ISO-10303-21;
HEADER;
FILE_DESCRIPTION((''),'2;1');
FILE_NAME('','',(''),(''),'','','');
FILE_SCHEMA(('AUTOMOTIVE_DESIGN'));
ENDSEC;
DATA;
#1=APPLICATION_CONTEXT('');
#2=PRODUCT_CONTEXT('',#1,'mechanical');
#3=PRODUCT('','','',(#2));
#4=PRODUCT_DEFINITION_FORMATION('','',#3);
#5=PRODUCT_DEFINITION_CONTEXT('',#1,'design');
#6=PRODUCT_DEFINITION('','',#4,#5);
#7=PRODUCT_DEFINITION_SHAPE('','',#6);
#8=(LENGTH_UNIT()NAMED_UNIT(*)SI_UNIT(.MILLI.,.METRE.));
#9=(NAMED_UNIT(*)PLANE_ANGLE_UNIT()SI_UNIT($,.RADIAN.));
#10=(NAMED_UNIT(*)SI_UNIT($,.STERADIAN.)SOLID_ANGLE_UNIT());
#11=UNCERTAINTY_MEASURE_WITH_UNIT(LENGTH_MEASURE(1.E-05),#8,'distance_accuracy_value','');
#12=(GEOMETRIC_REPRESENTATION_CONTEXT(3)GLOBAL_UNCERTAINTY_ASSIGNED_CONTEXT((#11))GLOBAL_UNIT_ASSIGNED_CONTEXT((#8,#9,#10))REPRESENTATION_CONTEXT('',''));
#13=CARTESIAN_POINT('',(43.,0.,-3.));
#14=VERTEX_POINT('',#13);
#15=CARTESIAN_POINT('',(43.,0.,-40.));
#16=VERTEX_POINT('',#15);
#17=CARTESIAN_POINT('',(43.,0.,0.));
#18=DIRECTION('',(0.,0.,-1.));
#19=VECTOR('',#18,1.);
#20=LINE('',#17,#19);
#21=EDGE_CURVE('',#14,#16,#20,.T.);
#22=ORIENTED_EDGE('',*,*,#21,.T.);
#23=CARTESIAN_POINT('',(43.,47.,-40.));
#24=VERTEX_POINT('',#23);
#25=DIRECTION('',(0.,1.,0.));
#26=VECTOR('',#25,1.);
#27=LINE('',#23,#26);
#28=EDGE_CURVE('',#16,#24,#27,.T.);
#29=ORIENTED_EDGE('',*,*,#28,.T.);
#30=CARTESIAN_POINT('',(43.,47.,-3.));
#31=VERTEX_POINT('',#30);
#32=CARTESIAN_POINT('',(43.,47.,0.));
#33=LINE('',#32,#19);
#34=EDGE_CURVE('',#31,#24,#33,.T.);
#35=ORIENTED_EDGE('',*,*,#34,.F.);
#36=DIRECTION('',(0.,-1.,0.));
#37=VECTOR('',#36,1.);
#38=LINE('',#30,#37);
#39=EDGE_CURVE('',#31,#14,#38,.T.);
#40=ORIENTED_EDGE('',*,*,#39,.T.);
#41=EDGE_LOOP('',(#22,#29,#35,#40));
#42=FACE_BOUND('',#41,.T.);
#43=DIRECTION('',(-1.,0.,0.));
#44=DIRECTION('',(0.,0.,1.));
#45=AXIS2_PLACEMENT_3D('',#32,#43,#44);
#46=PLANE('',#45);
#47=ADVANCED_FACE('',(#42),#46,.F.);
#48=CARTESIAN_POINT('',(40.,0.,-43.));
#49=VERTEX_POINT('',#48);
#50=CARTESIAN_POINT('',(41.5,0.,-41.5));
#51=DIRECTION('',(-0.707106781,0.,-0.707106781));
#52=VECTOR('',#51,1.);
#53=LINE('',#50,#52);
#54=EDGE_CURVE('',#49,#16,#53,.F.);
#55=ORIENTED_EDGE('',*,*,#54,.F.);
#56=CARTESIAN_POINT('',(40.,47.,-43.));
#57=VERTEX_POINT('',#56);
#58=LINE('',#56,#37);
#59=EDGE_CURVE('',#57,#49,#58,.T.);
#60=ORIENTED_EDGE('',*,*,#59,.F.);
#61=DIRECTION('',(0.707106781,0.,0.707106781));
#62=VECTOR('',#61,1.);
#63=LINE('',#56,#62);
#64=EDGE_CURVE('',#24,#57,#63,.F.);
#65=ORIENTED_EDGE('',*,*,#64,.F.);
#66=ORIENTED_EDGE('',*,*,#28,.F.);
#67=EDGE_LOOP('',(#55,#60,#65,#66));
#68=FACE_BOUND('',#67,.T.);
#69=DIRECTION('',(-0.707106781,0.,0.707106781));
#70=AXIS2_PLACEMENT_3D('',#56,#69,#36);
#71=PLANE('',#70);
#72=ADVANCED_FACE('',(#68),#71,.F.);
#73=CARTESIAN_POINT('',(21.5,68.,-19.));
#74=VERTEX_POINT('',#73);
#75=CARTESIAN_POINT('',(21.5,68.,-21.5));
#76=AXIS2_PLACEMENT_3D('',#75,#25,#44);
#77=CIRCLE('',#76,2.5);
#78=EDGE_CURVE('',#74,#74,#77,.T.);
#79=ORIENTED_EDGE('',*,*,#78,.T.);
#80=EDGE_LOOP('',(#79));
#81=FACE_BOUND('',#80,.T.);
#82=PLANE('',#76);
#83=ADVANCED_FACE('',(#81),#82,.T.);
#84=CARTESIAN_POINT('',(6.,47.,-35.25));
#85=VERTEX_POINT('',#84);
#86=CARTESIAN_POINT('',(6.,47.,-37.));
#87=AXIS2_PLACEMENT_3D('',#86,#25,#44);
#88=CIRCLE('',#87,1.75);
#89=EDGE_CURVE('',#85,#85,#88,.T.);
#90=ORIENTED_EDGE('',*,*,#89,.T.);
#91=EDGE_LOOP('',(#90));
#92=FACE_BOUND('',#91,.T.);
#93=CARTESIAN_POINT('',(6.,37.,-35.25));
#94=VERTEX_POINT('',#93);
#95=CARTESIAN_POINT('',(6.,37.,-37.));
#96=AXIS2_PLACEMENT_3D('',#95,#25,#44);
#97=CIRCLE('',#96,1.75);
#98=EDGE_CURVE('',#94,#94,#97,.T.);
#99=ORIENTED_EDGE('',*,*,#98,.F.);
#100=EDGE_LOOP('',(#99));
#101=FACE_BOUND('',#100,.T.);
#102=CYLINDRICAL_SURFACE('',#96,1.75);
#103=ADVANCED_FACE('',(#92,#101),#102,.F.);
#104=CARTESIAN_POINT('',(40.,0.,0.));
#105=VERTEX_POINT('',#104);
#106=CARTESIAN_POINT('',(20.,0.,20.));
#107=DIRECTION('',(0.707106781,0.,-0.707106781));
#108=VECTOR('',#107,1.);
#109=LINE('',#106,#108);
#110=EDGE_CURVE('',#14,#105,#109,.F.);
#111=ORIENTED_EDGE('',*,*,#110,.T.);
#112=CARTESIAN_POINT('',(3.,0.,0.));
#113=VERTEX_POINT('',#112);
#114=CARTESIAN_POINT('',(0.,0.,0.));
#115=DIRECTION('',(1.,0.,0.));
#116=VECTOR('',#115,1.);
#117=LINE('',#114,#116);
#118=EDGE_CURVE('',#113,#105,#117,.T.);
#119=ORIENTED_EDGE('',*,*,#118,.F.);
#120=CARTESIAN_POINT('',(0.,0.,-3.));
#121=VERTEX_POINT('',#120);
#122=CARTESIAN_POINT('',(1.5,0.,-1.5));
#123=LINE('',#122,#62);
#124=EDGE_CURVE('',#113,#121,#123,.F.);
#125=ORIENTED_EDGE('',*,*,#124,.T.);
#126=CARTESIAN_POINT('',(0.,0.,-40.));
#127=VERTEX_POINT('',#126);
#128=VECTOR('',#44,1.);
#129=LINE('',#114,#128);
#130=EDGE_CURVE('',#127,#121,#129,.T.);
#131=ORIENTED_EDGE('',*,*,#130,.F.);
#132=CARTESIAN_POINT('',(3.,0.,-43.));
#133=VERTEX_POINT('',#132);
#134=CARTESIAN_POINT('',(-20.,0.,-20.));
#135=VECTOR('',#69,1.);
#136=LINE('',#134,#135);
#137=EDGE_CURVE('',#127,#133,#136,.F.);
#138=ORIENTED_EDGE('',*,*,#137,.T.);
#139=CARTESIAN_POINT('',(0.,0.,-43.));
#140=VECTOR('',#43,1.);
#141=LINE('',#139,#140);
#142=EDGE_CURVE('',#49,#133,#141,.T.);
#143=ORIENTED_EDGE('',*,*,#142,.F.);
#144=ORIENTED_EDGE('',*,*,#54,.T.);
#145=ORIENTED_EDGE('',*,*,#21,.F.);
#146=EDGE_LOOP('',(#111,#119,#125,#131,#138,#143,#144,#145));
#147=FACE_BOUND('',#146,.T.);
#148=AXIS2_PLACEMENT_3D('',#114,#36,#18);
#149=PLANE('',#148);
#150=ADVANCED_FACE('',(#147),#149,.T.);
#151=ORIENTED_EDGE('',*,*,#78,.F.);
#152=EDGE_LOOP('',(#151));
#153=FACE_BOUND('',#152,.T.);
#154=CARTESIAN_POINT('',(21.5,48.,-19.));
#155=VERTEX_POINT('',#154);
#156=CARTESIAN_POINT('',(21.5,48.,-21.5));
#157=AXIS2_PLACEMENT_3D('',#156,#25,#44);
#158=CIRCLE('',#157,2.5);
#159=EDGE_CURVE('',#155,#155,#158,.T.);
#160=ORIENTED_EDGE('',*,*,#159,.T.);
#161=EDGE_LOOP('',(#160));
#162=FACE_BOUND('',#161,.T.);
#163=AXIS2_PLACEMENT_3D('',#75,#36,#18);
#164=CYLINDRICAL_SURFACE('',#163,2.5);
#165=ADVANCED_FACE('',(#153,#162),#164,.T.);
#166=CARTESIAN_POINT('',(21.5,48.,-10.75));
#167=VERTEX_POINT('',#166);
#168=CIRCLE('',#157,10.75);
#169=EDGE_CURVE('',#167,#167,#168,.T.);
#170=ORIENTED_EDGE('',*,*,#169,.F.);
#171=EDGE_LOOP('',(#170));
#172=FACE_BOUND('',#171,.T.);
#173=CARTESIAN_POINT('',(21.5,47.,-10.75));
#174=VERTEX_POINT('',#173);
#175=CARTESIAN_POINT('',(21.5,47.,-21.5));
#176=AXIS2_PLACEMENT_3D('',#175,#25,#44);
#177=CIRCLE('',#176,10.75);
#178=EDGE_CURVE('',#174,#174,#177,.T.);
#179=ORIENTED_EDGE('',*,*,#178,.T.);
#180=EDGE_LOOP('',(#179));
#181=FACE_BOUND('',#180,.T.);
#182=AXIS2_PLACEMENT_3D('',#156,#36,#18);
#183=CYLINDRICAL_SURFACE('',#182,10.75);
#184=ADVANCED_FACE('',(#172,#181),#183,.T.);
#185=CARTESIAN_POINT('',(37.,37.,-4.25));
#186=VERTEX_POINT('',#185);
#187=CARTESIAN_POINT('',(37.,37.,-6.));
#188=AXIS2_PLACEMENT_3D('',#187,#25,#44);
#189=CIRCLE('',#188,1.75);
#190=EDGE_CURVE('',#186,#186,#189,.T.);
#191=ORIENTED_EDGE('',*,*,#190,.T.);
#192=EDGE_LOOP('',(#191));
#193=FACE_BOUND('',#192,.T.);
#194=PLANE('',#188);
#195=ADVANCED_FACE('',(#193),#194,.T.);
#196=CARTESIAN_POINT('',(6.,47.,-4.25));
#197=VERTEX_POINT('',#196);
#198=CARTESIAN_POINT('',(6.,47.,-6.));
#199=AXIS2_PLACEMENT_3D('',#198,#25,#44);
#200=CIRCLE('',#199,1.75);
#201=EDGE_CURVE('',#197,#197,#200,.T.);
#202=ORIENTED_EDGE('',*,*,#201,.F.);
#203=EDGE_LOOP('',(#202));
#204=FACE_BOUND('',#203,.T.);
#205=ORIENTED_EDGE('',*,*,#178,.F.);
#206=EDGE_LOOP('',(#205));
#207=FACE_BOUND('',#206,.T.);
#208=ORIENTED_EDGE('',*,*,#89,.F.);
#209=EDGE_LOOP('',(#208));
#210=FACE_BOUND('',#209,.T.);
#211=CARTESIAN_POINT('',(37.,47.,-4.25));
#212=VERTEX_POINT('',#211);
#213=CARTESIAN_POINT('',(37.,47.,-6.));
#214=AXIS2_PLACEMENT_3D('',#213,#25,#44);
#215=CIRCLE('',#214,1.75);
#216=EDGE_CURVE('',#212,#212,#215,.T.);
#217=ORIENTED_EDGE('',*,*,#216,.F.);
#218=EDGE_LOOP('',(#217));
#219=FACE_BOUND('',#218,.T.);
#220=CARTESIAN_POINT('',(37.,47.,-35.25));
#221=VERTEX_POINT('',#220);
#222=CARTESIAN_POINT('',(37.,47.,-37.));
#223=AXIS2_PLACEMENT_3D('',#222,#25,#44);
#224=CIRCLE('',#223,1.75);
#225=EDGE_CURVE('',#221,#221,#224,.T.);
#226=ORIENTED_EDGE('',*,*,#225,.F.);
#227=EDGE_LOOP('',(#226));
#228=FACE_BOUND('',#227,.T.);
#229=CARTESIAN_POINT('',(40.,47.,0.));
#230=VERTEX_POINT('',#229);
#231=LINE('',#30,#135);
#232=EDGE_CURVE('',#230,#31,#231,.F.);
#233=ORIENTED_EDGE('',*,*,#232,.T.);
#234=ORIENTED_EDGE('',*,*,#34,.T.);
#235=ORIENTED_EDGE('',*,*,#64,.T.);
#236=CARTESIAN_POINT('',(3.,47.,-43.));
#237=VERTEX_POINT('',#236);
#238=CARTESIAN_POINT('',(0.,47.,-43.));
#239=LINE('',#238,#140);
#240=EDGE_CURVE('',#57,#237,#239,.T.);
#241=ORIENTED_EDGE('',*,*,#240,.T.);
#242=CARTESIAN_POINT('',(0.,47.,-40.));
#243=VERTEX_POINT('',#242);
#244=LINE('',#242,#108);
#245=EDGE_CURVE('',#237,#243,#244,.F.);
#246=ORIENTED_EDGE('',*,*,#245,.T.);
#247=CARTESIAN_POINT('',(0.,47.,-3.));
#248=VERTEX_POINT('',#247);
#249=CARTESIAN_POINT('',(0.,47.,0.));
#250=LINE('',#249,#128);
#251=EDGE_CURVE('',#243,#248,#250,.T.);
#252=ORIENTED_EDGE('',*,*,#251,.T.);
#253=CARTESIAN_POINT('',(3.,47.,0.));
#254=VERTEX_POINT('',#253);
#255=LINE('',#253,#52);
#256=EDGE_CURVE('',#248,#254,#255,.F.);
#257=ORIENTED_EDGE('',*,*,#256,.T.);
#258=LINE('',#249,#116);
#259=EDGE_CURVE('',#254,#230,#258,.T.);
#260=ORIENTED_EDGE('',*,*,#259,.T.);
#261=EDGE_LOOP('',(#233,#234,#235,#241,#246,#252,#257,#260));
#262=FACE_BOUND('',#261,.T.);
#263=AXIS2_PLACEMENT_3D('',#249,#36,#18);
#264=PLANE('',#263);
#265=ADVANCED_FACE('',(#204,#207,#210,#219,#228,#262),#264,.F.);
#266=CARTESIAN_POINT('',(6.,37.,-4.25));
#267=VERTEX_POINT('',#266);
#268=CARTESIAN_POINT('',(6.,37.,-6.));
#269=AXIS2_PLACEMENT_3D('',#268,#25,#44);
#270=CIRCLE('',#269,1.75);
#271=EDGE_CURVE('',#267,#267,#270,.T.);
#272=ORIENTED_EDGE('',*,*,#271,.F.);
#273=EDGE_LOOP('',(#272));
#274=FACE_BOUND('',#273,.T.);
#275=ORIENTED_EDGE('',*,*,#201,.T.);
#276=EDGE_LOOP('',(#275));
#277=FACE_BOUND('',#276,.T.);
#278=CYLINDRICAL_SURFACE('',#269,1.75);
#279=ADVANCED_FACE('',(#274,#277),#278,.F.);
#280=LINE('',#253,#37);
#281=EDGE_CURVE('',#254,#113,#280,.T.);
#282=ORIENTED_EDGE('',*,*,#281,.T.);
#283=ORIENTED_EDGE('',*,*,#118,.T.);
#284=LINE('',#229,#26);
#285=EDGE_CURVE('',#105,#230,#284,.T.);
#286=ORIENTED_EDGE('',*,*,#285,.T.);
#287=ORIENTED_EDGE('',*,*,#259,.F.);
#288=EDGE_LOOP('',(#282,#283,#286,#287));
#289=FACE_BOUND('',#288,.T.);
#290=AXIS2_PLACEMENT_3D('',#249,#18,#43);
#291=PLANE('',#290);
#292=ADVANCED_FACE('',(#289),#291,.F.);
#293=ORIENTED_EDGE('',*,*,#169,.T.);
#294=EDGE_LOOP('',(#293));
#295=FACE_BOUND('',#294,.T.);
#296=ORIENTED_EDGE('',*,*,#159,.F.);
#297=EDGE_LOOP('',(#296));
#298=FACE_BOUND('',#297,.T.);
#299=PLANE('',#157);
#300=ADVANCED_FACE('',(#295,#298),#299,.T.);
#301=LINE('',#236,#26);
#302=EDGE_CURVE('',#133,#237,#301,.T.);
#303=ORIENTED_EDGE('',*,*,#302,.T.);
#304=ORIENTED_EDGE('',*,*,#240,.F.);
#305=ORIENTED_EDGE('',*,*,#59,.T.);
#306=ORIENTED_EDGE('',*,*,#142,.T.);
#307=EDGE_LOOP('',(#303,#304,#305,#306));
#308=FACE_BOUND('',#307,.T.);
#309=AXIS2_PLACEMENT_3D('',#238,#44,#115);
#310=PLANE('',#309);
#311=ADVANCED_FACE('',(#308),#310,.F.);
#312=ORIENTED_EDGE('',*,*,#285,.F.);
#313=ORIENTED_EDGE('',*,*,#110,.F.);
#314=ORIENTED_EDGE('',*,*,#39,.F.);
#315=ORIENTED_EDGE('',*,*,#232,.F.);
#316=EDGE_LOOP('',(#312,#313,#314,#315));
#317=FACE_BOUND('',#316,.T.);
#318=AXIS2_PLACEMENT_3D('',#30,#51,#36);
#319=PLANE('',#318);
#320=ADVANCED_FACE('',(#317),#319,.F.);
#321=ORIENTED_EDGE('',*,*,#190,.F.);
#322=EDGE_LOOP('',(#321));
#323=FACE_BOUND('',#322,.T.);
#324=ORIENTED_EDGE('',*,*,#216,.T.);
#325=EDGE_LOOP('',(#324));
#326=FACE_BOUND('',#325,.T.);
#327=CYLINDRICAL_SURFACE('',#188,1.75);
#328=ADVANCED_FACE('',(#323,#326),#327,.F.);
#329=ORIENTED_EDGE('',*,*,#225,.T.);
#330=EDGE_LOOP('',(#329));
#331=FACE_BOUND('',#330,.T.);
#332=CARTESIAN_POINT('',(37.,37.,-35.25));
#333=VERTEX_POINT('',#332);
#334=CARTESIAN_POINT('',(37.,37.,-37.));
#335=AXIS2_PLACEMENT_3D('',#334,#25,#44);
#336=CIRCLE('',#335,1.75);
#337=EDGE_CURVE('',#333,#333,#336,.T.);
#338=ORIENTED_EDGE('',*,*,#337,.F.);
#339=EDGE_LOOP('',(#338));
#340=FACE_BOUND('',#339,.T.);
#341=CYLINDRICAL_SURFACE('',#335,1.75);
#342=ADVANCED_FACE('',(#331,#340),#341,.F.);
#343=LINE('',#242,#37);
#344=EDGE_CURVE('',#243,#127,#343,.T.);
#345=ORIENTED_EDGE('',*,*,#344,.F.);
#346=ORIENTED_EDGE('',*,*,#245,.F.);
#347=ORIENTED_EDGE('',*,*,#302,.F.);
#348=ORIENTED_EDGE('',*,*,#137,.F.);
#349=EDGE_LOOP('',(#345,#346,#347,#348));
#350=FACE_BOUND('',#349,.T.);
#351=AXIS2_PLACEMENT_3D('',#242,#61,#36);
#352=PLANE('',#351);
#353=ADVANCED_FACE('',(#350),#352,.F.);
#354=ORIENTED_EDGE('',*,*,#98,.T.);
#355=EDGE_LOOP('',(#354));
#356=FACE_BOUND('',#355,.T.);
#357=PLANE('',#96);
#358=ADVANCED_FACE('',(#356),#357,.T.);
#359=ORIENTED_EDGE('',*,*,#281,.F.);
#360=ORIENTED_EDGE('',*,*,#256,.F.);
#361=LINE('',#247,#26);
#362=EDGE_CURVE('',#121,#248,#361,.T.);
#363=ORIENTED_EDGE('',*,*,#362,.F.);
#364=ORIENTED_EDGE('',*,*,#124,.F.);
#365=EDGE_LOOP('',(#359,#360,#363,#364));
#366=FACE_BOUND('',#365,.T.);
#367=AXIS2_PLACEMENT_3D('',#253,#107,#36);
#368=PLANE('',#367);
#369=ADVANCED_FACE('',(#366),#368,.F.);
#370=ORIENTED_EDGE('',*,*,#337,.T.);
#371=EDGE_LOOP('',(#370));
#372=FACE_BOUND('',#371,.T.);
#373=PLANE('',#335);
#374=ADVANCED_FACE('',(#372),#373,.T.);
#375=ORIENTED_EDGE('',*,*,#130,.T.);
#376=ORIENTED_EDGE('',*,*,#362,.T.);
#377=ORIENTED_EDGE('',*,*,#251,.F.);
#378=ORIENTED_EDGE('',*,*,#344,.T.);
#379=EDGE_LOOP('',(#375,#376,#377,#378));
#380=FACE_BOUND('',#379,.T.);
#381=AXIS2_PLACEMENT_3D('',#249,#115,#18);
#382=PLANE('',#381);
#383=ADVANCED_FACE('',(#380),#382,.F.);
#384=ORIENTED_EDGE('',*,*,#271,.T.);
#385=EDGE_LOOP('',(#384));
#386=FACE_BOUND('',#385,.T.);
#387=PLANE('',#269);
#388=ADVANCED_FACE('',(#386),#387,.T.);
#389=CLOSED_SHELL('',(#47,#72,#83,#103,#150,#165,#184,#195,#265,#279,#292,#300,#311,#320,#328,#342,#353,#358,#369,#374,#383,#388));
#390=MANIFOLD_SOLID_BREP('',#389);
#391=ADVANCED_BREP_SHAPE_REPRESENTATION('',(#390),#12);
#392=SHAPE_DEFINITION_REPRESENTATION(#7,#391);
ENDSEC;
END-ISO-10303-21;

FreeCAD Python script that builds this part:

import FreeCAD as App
import Part
import Sketcher
from FreeCAD import Vector


def edges_at(feature, points):
    """Names of the edges that pass closest to the given points."""
    edges = feature.Shape.Edges
    near = lambda p: min(range(len(edges)), key=lambda i: edges[i].distToShape(Part.Vertex(*p))[0])
    return sorted({f"Edge{near(p) + 1}" for p in points})


def add_polygon(sketch, points):
    """Adds a closed chain of lines whose ends are joined by coincident constraints."""
    first, n = sketch.GeometryCount, len(points)
    for a, b in zip(points, points[1:] + points[:1]):
        sketch.addGeometry(Part.LineSegment(App.Vector(*a, 0), App.Vector(*b, 0)), False)
    for i in range(n):
        sketch.addConstraint(Sketcher.Constraint("Coincident", first + i, 2, first + (i + 1) % n, 1))

doc = App.newDocument("Part")
params = doc.addObject("Spreadsheet::Sheet", "Params")
for row, (alias, value) in enumerate([
    ("sketch1_width", "43 mm"),
    ("pad1_length", "47 mm"),
    ("sketch2_diameter", "21.5 mm"),
    ("pad2_length", "1 mm"),
    ("sketch3_diameter", "5 mm"),
    ("pad3_length", "20 mm"),
    ("chamfer_size", "3 mm"),
    ("sketch4_diameter", "3.5 mm"),
    ("pocket1_length", "10 mm"),
], start=1):
    params.set(f"A{row}", alias)
    params.set(f"B{row}", "=" + value)
    params.setAlias(f"B{row}", alias)

body = doc.addObject("PartDesign::Body", "Body")

sketch1 = doc.addObject("Sketcher::SketchObject", "Sketch")
body.addObject(sketch1)
sketch1.AttachmentSupport = (doc.XZ_Plane, [""])
sketch1.MapMode = "FlatFace"
add_polygon(sketch1, [(0, -43), (0, 0), (43, 0), (43, -43)])
sketch1.addConstraint([
    Sketcher.Constraint("Vertical", 0),
    Sketcher.Constraint("Horizontal", 1),
    Sketcher.Constraint("Vertical", 2),
    Sketcher.Constraint("Horizontal", 3),
    Sketcher.Constraint("Coincident", 0, 2, -1, 1),
    Sketcher.Constraint("Equal", 3, 0),
    Sketcher.Constraint("DistanceX", 1, 1, 1, 2, 43.0),
])
sketch1.setExpression("Constraints[10]", "Params.sketch1_width")
pad1 = doc.addObject("PartDesign::Pad", "Pad")
body.addObject(pad1)
pad1.Profile = sketch1
pad1.setExpression("Length", "Params.pad1_length")
pad1.Reversed = True

sketch2 = doc.addObject("Sketcher::SketchObject", "Sketch001")
body.addObject(sketch2)
sketch2.AttachmentSupport = (doc.XZ_Plane, [""])
sketch2.MapMode = "FlatFace"
sketch2.AttachmentOffset = App.Placement(Vector(0, 0, -47), App.Rotation())
sketch2.addGeometry(Part.Circle(Vector(22, -22, 0), Vector(0, 0, 1), 11), False)
sketch2.addConstraint([
    Sketcher.Constraint("Diameter", 0, 21.5),
    Sketcher.Constraint("DistanceX", -1, 1, 0, 3, 21.5),
    Sketcher.Constraint("DistanceY", 0, 3, -1, 1, 21.5),
])
sketch2.setExpression("Constraints[0]", "Params.sketch2_diameter")
pad2 = doc.addObject("PartDesign::Pad", "Pad001")
body.addObject(pad2)
pad2.Profile = sketch2
pad2.setExpression("Length", "Params.pad2_length")
pad2.Reversed = True

sketch3 = doc.addObject("Sketcher::SketchObject", "Sketch002")
body.addObject(sketch3)
sketch3.AttachmentSupport = (doc.XZ_Plane, [""])
sketch3.MapMode = "FlatFace"
sketch3.AttachmentOffset = App.Placement(Vector(0, 0, -48), App.Rotation())
sketch3.addGeometry(Part.Circle(Vector(21.5, -21.5, 0), Vector(0, 0, 1), 2.5), False)
sketch3.addConstraint([
    Sketcher.Constraint("Diameter", 0, 5.0),
    Sketcher.Constraint("DistanceX", -1, 1, 0, 3, 21.5),
    Sketcher.Constraint("DistanceY", 0, 3, -1, 1, 21.5),
])
sketch3.setExpression("Constraints[0]", "Params.sketch3_diameter")
pad3 = doc.addObject("PartDesign::Pad", "Pad002")
body.addObject(pad3)
pad3.Profile = sketch3
pad3.setExpression("Length", "Params.pad3_length")
pad3.Reversed = True
doc.recompute()

chamfer = doc.addObject("PartDesign::Chamfer", "Chamfer")
body.addObject(chamfer)
chamfer.Base = (pad3, edges_at(pad3, [
    (0, 23.5, -43),
    (43, 23.5, -43),
    (43, 23.5, 0),
    (0, 23.5, 0),
]))
chamfer.setExpression("Size", "Params.chamfer_size")

sketch4 = doc.addObject("Sketcher::SketchObject", "Sketch003")
body.addObject(sketch4)
sketch4.AttachmentSupport = (doc.XZ_Plane, [""])
sketch4.MapMode = "FlatFace"
sketch4.AttachmentOffset = App.Placement(Vector(0, 0, -47), App.Rotation())
sketch4.addGeometry([
    Part.Circle(Vector(6, -37, 0), Vector(0, 0, 1), 1.8),
    Part.Circle(Vector(6, -6, 0), Vector(0, 0, 1), 1.8),
    Part.Circle(Vector(37, -6, 0), Vector(0, 0, 1), 1.8),
    Part.Circle(Vector(37, -37, 0), Vector(0, 0, 1), 1.8),
], False)
sketch4.addConstraint([
    Sketcher.Constraint("Equal", 0, 1),
    Sketcher.Constraint("Equal", 1, 2),
    Sketcher.Constraint("Equal", 2, 3),
    Sketcher.Constraint("Horizontal", 1, 3, 2, 3),
    Sketcher.Constraint("Horizontal", 0, 3, 3, 3),
    Sketcher.Constraint("Vertical", 0, 3, 1, 3),
    Sketcher.Constraint("Vertical", 2, 3, 3, 3),
    Sketcher.Constraint("Diameter", 0, 3.5),
    Sketcher.Constraint("DistanceX", -1, 1, 0, 3, 6.0),
    Sketcher.Constraint("DistanceY", 0, 3, -1, 1, 37.0),
    Sketcher.Constraint("DistanceY", 1, 3, -1, 1, 6.0),
    Sketcher.Constraint("DistanceX", -1, 1, 2, 3, 37.0),
])
sketch4.setExpression("Constraints[7]", "Params.sketch4_diameter")
pocket1 = doc.addObject("PartDesign::Pocket", "Pocket")
body.addObject(pocket1)
pocket1.Profile = sketch4
pocket1.setExpression("Length", "Params.pocket1_length")
pocket1.Reversed = True

doc.recompute()
